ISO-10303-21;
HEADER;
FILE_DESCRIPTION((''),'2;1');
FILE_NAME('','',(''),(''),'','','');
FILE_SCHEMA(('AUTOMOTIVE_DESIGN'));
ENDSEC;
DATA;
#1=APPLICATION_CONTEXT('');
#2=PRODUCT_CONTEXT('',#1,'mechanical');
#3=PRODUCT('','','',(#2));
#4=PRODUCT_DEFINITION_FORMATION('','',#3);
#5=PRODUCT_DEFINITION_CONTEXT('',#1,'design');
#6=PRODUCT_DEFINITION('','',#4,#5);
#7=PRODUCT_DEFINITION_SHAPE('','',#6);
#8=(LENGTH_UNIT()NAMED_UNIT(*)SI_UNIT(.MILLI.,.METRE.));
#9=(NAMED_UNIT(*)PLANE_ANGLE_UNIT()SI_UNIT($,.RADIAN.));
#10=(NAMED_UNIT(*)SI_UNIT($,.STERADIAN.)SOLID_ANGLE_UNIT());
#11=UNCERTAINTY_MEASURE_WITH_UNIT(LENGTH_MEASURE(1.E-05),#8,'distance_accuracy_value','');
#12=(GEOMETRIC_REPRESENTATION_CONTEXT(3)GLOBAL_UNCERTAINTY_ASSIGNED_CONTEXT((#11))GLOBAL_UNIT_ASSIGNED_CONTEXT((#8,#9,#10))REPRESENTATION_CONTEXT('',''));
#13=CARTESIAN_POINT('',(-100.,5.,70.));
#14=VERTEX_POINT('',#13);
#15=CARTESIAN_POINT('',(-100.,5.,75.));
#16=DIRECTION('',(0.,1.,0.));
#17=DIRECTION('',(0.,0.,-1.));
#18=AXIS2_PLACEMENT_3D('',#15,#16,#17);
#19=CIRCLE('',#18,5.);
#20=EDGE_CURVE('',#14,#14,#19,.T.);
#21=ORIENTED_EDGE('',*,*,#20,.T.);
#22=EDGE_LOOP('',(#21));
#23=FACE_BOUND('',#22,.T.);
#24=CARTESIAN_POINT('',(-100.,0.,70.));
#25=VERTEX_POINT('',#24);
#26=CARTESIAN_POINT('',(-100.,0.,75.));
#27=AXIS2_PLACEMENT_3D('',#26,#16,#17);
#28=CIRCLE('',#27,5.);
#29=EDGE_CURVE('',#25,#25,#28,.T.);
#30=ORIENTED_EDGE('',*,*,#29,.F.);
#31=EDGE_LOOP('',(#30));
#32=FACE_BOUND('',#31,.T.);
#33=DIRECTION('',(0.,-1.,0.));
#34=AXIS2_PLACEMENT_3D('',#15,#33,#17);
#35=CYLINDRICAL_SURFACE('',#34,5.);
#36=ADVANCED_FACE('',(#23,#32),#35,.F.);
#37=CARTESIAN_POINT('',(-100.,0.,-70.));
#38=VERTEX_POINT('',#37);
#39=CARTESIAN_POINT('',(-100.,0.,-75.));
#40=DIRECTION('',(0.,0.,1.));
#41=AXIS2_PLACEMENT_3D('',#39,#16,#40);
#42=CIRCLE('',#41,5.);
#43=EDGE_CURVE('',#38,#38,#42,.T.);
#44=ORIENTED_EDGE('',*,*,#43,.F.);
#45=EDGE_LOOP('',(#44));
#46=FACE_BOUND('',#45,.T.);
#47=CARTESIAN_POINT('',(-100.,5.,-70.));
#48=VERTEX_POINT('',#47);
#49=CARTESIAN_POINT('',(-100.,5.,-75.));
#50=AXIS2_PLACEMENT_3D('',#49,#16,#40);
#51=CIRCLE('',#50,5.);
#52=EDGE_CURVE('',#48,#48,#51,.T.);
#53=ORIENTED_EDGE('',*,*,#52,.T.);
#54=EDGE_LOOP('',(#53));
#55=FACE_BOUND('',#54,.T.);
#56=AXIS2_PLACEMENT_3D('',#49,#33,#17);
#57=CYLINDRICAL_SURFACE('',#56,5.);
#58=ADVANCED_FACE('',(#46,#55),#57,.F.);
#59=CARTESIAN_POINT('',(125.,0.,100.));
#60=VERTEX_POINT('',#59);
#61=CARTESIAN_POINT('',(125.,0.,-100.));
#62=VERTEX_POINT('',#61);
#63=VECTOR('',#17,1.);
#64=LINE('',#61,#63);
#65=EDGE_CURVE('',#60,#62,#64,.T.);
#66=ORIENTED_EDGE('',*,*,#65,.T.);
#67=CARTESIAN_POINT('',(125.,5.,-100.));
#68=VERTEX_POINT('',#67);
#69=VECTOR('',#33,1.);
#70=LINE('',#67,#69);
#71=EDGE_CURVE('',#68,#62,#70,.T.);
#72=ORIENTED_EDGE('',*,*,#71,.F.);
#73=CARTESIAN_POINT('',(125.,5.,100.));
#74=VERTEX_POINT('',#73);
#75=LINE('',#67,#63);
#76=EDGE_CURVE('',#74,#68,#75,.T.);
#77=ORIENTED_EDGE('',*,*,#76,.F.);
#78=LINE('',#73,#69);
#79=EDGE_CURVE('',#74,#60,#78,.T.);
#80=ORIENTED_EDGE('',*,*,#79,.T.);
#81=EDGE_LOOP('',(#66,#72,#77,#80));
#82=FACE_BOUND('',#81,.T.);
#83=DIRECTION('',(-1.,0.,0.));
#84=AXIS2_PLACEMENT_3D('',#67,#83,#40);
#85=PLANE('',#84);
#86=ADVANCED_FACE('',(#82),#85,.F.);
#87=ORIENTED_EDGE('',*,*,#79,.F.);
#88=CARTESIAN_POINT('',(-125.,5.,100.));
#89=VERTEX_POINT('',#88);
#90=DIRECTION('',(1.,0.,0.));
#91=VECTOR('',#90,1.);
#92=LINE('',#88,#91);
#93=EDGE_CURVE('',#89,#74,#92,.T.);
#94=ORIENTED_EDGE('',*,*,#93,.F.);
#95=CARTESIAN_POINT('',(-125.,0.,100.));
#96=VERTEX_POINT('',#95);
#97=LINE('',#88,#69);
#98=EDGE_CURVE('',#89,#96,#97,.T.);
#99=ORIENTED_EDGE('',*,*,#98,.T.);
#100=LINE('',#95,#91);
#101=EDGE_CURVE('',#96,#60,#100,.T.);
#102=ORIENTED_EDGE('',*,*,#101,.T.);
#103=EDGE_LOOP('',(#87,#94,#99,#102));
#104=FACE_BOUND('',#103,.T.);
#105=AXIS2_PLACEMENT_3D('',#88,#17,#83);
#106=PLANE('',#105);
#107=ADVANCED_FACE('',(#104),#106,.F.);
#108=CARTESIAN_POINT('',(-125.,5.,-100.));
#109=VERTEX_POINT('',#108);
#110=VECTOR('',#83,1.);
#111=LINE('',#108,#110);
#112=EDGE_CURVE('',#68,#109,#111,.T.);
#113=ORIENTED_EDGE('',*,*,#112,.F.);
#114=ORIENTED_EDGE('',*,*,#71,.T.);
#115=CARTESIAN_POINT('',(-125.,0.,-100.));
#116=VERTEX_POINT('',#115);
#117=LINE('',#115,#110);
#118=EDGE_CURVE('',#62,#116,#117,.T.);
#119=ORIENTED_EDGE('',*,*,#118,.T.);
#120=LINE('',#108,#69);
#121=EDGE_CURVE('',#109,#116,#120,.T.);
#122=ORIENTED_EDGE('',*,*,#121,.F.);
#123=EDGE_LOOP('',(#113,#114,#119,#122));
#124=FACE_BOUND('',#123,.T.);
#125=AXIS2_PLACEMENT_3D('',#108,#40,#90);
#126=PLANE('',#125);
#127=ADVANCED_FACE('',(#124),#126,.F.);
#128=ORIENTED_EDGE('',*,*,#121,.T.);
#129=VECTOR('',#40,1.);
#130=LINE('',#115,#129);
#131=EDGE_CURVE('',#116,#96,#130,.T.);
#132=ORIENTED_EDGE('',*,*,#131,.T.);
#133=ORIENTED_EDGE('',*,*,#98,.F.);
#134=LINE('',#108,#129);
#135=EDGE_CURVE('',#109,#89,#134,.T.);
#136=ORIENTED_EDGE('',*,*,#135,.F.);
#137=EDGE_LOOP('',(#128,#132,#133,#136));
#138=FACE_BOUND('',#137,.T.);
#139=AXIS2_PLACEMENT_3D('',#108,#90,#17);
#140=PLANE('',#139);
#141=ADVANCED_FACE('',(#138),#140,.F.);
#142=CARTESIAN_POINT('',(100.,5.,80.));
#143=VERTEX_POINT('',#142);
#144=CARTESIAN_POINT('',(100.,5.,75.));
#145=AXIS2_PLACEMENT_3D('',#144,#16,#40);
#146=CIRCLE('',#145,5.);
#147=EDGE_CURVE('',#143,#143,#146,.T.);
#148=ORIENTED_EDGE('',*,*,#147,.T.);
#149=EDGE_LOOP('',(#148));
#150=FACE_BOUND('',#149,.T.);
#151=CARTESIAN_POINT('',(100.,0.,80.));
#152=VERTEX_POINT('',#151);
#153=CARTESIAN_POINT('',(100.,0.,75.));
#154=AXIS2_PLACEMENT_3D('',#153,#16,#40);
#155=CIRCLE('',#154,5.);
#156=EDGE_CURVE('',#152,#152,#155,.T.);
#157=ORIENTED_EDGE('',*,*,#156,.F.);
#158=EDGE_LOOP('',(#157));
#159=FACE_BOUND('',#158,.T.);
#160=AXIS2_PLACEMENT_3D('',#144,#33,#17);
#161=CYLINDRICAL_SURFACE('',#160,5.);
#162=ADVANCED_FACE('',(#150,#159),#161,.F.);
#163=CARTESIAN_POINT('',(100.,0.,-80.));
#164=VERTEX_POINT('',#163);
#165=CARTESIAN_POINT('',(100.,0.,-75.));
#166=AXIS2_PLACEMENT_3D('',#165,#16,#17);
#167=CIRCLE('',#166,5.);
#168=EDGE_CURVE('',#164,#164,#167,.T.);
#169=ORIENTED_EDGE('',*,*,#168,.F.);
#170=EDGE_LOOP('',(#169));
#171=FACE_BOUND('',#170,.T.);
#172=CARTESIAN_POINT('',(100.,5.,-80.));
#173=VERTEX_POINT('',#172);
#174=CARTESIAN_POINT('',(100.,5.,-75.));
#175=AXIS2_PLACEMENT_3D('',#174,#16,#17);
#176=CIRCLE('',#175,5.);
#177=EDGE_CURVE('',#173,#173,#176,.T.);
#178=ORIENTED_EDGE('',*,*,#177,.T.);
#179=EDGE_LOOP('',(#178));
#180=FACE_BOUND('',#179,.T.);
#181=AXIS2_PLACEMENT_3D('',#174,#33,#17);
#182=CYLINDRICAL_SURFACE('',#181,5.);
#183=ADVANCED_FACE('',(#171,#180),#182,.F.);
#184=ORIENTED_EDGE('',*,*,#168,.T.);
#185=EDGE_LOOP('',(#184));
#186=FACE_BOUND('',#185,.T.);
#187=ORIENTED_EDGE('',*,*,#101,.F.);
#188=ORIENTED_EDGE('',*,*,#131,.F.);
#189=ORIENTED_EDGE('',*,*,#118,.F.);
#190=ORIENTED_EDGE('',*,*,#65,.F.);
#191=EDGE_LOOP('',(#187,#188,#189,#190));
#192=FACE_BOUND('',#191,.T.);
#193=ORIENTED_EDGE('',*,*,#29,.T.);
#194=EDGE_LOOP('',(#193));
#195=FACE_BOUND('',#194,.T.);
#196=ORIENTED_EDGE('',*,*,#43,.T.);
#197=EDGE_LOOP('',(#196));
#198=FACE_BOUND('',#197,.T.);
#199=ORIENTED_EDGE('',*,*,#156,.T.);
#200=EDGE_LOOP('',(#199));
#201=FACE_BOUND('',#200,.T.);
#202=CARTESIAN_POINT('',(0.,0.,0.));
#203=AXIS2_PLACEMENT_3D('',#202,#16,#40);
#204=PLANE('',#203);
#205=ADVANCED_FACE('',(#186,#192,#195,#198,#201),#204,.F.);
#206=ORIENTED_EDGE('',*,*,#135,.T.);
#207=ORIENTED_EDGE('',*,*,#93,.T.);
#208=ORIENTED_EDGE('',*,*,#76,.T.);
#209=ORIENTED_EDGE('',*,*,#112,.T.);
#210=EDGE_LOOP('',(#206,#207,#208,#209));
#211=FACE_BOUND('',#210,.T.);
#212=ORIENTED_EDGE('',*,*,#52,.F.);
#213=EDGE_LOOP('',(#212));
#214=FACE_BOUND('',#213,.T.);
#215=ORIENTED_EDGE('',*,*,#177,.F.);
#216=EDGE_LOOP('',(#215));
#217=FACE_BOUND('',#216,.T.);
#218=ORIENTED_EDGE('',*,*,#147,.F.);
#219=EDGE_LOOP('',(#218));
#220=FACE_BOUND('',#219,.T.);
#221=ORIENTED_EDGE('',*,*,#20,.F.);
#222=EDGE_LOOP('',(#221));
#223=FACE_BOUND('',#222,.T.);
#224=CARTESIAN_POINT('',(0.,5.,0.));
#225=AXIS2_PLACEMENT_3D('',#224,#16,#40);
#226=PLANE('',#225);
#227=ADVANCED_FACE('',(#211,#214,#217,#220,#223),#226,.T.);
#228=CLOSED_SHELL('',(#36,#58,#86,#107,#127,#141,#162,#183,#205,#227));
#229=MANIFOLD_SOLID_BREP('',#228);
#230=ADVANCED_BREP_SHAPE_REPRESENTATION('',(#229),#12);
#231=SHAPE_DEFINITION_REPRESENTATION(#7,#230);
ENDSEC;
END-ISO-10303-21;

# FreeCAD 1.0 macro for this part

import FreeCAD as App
import Part
import Sketcher
from FreeCAD import Vector
Q = App.Units.Quantity


def add_polygon(sketch, points):
    """Adds a closed chain of lines whose ends are joined by coincident constraints."""
    first, n = sketch.GeometryCount, len(points)
    for a, b in zip(points, points[1:] + points[:1]):
        sketch.addGeometry(Part.LineSegment(App.Vector(*a, 0), App.Vector(*b, 0)), False)
    for i in range(n):
        sketch.addConstraint(Sketcher.Constraint("Coincident", first + i, 2, first + (i + 1) % n, 1))

doc = App.newDocument("Part")
body = doc.addObject("PartDesign::Body", "Body")

# Sketch on XZ plane
sketch1 = doc.addObject("Sketcher::SketchObject", "Sketch")
body.addObject(sketch1)
sketch1.AttachmentSupport = (doc.XZ_Plane, [""])
sketch1.MapMode = "FlatFace"
add_polygon(sketch1, [(-125, -100), (-125, 100), (125, 100), (125, -100)])  # lines 0-3
sketch1.addConstraint(Sketcher.Constraint("Vertical", 0))
sketch1.addConstraint(Sketcher.Constraint("Horizontal", 1))
sketch1.addConstraint(Sketcher.Constraint("Vertical", 2))
sketch1.addConstraint(Sketcher.Constraint("Horizontal", 3))
sketch1.addConstraint(Sketcher.Constraint("Symmetric", 0, 2, 2, 2, -1, 1))
sketch1.addConstraint(Sketcher.Constraint("DistanceX", 1, 1, 1, 2, Q("250 mm")))
sketch1.addConstraint(Sketcher.Constraint("DistanceY", 0, 1, 0, 2, Q("200 mm")))
pad1 = doc.addObject("PartDesign::Pad", "Pad")
body.addObject(pad1)
pad1.Profile = sketch1
pad1.Length = 5
pad1.Reversed = True

# Sketch on XZ plane
sketch2 = doc.addObject("Sketcher::SketchObject", "Sketch001")
body.addObject(sketch2)
sketch2.AttachmentSupport = (doc.XZ_Plane, [""])
sketch2.MapMode = "FlatFace"
sketch2.addGeometry(Part.Circle(Vector(-100, -75, 0), Vector(0, 0, 1), 5), False)
sketch2.addGeometry(Part.Circle(Vector(100, -75, 0), Vector(0, 0, 1), 5), False)
sketch2.addGeometry(Part.Circle(Vector(100, 75, 0), Vector(0, 0, 1), 5), False)
sketch2.addGeometry(Part.Circle(Vector(-100, 75, 0), Vector(0, 0, 1), 5), False)
sketch2.addConstraint(Sketcher.Constraint("Equal", 0, 1))
sketch2.addConstraint(Sketcher.Constraint("Equal", 1, 2))
sketch2.addConstraint(Sketcher.Constraint("Equal", 2, 3))
sketch2.addConstraint(Sketcher.Constraint("Symmetric", 0, 3, 2, 3, -1, 1))
sketch2.addConstraint(Sketcher.Constraint("Symmetric", 1, 3, 3, 3, -1, 1))
sketch2.addConstraint(Sketcher.Constraint("Symmetric", 0, 3, 1, 3, -2))
sketch2.addConstraint(Sketcher.Constraint("Diameter", 0, Q("10 mm")))
sketch2.addConstraint(Sketcher.Constraint("DistanceX", 0, 3, -1, 1, Q("100 mm")))
sketch2.addConstraint(Sketcher.Constraint("DistanceY", 0, 3, -1, 1, Q("75 mm")))
pocket1 = doc.addObject("PartDesign::Pocket", "Pocket")
body.addObject(pocket1)
pocket1.Profile = sketch2
pocket1.Type = "ThroughAll"

doc.recompute()
